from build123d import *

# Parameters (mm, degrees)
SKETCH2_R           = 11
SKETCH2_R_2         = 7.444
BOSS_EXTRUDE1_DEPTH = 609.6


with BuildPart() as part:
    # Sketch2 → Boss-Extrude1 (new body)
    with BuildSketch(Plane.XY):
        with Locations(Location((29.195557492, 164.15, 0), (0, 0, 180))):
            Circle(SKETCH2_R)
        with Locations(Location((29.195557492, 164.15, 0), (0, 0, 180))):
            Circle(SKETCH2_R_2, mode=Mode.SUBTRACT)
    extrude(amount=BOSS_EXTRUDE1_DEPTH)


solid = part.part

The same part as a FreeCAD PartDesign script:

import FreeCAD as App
import Part
import Sketcher

V = App.Vector

doc = App.newDocument("Part")
body = doc.addObject("PartDesign::Body", "Body")

# Sketch on XY plane
sketch1 = body.newObject("Sketcher::SketchObject", "Sketch")
sketch1.AttachmentSupport = (doc.getObject("XY_Plane"), [""])
sketch1.MapMode = "FlatFace"
sketch1.addGeometry(Part.Circle(V(29.195557, 164.15, 0), V(0, 0, 1), 11), False)
sketch1.addGeometry(Part.Circle(V(29.195557, 164.15, 0), V(0, 0, 1), 7.444), False)
sketch1.addConstraint(Sketcher.Constraint("Coincident", 1, 3, 0, 3))
sketch1.addConstraint(Sketcher.Constraint("Diameter", 0, 22.0))
sketch1.addConstraint(Sketcher.Constraint("Diameter", 1, 14.888))
sketch1.addConstraint(Sketcher.Constraint("DistanceY", -1, 1, 0, 3, 164.15))
sketch1.addConstraint(Sketcher.Constraint("DistanceX", -1, 1, 0, 3, 29.195557))
pad1 = body.newObject("PartDesign::Pad", "Pad")
pad1.Profile = sketch1
pad1.Length = 609.6

doc.recompute()
